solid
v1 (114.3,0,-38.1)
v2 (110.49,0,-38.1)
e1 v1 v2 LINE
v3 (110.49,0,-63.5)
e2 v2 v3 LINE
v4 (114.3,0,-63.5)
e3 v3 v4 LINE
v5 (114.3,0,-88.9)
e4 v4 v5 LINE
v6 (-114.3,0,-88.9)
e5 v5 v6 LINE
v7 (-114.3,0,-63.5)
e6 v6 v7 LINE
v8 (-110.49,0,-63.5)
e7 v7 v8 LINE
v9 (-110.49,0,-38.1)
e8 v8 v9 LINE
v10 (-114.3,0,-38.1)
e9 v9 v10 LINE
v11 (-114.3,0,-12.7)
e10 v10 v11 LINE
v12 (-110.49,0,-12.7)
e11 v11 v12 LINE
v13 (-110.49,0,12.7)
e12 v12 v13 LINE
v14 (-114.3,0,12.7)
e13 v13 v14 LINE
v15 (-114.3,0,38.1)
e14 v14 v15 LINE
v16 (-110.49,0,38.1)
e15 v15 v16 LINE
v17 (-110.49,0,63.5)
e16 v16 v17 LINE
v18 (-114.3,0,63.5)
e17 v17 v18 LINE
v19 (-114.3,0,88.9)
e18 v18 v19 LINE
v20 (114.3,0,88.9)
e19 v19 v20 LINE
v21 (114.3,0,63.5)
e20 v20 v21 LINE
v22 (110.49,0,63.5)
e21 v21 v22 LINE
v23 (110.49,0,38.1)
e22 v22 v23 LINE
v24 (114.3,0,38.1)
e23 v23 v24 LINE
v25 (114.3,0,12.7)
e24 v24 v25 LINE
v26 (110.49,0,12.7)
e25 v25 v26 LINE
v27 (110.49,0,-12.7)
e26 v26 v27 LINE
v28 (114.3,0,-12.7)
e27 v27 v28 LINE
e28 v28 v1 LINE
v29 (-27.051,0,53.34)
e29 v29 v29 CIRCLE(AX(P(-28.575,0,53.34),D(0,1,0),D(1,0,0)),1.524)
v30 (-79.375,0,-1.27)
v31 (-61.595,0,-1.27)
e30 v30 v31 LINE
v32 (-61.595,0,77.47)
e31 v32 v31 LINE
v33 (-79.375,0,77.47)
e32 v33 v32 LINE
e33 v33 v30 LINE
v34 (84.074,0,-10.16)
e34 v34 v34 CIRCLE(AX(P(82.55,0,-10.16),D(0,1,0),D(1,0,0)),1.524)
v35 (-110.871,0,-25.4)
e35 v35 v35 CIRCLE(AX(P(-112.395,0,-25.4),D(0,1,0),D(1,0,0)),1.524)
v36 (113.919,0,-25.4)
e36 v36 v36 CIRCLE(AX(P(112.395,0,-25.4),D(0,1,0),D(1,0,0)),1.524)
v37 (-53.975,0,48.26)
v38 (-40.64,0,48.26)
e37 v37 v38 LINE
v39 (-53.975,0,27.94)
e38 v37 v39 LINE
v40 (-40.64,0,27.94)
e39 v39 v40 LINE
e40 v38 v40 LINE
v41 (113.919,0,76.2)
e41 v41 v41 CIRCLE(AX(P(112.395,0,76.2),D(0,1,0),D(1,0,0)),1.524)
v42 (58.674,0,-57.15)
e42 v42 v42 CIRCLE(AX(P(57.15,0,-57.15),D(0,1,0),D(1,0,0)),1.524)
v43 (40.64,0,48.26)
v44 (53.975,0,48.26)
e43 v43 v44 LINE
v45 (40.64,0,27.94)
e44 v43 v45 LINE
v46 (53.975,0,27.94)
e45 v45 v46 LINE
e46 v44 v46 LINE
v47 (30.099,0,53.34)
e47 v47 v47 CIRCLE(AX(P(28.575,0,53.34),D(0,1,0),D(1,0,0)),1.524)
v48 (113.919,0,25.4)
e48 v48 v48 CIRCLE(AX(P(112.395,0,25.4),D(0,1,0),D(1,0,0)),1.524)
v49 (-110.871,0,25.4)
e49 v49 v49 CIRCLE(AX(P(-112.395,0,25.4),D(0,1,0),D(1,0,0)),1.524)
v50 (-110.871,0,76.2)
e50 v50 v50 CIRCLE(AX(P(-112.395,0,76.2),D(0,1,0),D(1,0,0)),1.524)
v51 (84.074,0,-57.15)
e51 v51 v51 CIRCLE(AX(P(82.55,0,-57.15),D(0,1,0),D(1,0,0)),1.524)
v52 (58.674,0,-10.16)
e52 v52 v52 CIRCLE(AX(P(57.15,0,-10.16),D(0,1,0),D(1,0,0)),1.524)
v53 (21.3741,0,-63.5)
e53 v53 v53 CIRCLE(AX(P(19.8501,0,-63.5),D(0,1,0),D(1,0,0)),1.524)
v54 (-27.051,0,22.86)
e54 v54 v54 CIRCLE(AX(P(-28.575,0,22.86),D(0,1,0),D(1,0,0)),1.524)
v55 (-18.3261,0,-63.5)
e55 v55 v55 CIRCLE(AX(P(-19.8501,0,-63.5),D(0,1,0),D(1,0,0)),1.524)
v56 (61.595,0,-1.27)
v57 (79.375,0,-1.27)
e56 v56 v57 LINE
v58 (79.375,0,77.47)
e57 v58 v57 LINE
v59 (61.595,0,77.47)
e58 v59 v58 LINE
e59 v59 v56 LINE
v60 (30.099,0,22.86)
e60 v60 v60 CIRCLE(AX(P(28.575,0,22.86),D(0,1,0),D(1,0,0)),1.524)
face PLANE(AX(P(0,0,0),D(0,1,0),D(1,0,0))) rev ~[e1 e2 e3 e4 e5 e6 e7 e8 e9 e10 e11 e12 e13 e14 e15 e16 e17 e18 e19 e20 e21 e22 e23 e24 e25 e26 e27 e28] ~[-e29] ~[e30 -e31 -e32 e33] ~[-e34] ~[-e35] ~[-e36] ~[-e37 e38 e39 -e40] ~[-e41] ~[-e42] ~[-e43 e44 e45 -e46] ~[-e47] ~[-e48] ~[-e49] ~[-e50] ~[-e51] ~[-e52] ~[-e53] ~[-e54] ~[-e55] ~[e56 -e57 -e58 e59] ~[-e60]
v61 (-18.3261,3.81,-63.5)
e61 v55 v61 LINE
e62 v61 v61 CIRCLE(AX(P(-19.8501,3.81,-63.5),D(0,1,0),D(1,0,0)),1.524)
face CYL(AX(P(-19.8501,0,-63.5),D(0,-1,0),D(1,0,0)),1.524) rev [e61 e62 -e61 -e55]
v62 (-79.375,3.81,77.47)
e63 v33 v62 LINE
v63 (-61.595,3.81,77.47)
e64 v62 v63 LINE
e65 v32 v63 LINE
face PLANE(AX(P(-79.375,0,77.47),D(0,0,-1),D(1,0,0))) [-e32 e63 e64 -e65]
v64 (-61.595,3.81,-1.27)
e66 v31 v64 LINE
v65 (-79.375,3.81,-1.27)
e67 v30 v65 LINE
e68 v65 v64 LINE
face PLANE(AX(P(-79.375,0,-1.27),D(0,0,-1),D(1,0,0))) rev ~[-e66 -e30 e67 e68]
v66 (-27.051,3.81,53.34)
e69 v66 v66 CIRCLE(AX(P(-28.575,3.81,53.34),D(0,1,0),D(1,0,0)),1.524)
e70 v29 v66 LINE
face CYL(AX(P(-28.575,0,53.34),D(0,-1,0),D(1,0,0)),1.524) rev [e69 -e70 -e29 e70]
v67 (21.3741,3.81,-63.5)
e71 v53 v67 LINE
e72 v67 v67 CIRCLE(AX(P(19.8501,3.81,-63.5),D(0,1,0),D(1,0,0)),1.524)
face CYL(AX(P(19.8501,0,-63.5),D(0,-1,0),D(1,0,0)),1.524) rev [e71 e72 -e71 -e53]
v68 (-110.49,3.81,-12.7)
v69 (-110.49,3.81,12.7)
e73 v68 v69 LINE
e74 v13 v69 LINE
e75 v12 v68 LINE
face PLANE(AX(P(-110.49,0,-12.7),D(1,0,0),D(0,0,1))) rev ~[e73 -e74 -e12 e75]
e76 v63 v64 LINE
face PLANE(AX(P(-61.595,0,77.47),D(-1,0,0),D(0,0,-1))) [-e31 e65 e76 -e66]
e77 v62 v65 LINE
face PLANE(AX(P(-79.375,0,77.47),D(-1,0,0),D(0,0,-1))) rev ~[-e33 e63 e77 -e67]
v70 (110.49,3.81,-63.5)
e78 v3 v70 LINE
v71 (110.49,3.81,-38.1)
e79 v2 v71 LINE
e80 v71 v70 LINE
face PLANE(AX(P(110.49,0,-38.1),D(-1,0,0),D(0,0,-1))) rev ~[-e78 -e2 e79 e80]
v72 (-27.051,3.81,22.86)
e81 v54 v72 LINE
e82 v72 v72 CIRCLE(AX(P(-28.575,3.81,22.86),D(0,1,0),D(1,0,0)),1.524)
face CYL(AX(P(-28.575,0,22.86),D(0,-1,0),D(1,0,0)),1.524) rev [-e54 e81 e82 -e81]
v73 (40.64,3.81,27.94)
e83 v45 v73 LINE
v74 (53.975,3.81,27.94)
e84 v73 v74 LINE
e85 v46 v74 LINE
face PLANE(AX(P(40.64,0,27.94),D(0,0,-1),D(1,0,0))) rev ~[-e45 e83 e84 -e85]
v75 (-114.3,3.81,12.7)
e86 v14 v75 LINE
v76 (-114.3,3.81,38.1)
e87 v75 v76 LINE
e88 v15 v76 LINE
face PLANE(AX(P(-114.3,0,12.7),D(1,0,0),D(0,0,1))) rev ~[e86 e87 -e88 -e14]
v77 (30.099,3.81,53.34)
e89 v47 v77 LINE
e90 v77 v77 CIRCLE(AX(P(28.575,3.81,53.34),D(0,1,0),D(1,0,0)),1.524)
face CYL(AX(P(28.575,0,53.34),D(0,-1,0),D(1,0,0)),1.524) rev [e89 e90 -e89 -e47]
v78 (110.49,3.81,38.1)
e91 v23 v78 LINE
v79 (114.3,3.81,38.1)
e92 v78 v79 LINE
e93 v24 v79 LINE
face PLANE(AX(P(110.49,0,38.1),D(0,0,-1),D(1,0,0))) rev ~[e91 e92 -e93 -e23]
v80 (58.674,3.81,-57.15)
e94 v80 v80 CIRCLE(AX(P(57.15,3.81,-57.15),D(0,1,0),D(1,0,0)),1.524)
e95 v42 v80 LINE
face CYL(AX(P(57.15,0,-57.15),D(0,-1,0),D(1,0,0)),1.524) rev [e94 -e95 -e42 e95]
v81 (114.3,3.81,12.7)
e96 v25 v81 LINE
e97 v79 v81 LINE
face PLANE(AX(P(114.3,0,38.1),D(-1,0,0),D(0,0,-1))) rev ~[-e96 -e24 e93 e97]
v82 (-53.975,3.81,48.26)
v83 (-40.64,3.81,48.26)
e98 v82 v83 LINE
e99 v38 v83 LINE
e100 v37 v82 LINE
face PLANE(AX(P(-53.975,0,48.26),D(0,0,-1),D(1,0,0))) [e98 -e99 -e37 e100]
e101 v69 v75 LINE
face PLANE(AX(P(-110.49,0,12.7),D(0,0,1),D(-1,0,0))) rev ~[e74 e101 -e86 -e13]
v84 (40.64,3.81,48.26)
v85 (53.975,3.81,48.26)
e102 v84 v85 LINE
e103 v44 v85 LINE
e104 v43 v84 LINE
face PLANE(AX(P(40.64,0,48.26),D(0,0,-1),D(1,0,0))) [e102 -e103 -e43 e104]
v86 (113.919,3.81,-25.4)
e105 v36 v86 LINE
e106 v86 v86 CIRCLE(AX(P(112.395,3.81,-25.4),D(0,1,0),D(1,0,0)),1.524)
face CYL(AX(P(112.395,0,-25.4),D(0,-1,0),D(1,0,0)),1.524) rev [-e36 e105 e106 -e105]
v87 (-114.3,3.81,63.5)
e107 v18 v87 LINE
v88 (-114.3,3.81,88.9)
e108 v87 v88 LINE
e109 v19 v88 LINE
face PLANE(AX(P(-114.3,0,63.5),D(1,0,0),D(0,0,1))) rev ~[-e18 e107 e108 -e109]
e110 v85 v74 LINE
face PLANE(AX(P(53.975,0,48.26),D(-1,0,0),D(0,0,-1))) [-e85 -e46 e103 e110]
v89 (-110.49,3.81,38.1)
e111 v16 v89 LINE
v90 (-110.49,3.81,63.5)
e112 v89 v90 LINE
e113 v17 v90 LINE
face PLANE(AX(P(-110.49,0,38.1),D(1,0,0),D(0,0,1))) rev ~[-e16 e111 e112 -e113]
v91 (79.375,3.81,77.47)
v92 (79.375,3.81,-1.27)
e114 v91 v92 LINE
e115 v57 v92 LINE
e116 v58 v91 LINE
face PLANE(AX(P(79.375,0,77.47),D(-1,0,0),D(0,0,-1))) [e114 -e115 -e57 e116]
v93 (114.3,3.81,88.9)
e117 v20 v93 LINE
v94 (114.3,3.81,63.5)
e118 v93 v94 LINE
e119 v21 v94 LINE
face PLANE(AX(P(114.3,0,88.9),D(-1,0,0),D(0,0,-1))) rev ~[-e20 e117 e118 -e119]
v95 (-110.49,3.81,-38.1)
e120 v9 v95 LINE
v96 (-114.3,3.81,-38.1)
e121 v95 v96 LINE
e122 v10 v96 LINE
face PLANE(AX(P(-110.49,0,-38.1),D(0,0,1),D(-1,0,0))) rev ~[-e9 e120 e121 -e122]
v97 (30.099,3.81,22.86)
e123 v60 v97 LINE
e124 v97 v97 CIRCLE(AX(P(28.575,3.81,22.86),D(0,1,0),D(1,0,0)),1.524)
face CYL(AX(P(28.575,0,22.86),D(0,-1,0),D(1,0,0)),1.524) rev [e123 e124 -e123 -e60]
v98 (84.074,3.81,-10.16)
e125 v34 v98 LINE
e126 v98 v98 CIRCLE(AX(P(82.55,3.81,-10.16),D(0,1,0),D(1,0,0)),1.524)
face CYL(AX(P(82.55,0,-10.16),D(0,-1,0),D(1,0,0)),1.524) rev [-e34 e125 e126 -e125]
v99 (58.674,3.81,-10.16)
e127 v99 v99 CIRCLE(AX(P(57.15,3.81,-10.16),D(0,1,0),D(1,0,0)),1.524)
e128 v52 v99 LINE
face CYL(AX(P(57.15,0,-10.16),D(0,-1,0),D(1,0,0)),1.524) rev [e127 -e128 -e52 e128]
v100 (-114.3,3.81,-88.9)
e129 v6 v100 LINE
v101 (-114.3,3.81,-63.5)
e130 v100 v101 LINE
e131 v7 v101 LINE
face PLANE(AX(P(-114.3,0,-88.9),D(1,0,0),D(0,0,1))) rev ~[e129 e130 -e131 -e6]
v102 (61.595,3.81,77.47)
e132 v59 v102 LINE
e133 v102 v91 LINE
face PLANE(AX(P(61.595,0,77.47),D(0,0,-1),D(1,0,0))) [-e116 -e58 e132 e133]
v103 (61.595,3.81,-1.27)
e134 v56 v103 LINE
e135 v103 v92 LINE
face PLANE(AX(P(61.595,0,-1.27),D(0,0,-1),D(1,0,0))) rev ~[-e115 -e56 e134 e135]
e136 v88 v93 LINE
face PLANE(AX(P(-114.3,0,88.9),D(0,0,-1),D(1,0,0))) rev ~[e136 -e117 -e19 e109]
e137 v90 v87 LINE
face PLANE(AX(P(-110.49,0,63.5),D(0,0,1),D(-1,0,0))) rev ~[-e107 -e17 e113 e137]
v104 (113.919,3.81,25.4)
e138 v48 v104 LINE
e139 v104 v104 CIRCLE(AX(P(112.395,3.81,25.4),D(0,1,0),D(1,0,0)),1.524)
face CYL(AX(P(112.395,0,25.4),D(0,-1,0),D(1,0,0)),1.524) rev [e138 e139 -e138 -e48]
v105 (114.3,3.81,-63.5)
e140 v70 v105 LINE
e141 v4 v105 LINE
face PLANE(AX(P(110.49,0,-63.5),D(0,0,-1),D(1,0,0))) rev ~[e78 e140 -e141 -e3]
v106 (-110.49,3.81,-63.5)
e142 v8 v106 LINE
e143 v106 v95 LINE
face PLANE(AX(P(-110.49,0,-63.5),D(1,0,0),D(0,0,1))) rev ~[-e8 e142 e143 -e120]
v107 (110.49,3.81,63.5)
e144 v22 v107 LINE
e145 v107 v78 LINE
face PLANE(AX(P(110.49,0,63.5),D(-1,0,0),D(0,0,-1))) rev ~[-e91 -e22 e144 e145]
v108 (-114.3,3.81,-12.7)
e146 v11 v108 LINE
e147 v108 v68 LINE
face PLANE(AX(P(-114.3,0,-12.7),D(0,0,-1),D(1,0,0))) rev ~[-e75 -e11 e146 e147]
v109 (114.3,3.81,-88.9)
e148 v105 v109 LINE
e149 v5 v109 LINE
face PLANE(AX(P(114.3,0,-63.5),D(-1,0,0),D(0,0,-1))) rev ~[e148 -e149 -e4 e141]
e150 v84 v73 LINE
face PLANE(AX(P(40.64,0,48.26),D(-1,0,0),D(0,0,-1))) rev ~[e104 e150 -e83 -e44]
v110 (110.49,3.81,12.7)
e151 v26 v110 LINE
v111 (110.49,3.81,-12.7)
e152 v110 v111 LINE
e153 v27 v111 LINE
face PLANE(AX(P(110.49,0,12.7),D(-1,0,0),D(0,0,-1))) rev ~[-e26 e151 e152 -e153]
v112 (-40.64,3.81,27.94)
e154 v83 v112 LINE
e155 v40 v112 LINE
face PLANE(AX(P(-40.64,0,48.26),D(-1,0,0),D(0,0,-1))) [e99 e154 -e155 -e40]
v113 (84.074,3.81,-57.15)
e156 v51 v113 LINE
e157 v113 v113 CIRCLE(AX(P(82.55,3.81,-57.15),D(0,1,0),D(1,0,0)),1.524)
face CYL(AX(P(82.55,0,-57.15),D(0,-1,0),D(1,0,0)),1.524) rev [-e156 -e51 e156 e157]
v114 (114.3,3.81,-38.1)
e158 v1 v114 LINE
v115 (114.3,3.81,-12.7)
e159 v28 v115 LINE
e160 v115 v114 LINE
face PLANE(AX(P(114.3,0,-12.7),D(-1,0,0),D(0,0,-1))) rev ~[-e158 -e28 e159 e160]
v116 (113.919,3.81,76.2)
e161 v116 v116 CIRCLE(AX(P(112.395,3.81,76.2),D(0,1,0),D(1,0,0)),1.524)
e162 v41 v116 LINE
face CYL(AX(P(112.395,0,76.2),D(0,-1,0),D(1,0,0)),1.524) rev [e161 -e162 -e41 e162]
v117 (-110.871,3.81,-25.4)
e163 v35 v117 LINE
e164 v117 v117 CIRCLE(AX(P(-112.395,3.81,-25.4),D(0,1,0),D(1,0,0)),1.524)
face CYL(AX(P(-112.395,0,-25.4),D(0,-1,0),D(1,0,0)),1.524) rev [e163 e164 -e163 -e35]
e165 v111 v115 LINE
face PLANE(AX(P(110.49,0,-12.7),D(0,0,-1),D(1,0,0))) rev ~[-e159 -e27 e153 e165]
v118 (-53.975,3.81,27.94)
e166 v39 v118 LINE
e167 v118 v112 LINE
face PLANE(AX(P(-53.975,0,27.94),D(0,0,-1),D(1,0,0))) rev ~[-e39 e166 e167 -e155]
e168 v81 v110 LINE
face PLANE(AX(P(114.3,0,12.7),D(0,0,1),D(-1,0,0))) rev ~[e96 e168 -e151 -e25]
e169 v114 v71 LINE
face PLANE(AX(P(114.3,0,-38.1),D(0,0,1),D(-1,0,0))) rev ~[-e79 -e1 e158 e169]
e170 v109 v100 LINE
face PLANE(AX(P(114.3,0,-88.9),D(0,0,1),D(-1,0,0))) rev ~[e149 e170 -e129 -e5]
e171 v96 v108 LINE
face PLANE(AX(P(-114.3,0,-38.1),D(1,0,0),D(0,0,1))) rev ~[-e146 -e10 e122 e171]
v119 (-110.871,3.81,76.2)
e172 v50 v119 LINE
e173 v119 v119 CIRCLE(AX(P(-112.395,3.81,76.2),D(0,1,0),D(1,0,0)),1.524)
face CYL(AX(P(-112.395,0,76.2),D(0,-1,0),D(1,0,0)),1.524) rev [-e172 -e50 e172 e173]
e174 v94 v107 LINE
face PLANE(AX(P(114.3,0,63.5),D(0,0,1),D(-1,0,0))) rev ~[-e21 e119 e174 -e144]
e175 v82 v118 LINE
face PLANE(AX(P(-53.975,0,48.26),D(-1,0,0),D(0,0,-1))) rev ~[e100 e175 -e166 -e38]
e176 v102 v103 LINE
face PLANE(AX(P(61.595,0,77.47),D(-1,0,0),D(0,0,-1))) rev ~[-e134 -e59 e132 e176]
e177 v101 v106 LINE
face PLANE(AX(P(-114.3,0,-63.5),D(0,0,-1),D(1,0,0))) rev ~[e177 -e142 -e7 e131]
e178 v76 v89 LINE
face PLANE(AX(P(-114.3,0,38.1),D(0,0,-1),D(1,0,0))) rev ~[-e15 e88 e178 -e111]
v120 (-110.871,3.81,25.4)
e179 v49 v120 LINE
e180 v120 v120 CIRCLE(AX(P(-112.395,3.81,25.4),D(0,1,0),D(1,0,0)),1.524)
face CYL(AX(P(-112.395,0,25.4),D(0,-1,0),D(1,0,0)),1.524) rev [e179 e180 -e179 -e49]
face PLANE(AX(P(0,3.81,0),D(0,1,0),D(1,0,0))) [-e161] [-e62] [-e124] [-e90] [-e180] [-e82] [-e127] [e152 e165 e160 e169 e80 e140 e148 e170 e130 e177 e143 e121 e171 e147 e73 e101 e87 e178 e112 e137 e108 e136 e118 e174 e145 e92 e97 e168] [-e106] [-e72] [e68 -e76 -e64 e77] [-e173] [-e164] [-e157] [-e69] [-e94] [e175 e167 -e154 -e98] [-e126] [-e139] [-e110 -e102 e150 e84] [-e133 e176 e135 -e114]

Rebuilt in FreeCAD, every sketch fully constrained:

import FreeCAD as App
import Part
import Sketcher
from FreeCAD import Vector
Q = App.Units.Quantity


def add_polygon(sketch, points):
    """Adds a closed chain of lines whose ends are joined by coincident constraints."""
    first, n = sketch.GeometryCount, len(points)
    for a, b in zip(points, points[1:] + points[:1]):
        sketch.addGeometry(Part.LineSegment(App.Vector(*a, 0), App.Vector(*b, 0)), False)
    for i in range(n):
        sketch.addConstraint(Sketcher.Constraint("Coincident", first + i, 2, first + (i + 1) % n, 1))

doc = App.newDocument("Part")
body = doc.addObject("PartDesign::Body", "Body")

# Sketch on XZ plane
sketch1 = body.newObject("Sketcher::SketchObject", "Sketch")
sketch1.AttachmentSupport = (doc.getObject("XZ_Plane"), [""])
sketch1.MapMode = "FlatFace"
add_polygon(sketch1, [(-114.3, 88.9), (114.3, 88.9), (114.3, 63.5), (110.5, 63.5), (110.5, 38.1), (114.3, 38.1), (114.3, 12.7), (110.5, 12.7), (110.5, -12.7), (114.3, -12.7), (114.3, -38.1), (110.5, -38.1), (110.5, -63.5), (114.3, -63.5), (114.3, -88.9), (-114.3, -88.9), (-114.3, -63.5), (-110.5, -63.5), (-110.5, -38.1), (-114.3, -38.1), (-114.3, -12.7), (-110.5, -12.7), (-110.5, 12.7), (-114.3, 12.7), (-114.3, 38.1), (-110.5, 38.1), (-110.5, 63.5), (-114.3, 63.5)])  # lines 0-27
sketch1.addGeometry(Part.Circle(Vector(-112.4, 76.2, 0), Vector(0, 0, 1), 1.5), False)  # 28
sketch1.addGeometry(Part.Circle(Vector(-28.6, 53.3, 0), Vector(0, 0, 1), 1.5), False)  # 29
sketch1.addGeometry(Part.Circle(Vector(-112.4, 25.4, 0), Vector(0, 0, 1), 1.5), False)  # 30
add_polygon(sketch1, [(-61.6, 77.5), (-79.4, 77.5), (-79.4, -1.3), (-61.6, -1.3)])  # lines 31-34
add_polygon(sketch1, [(-40.6, 48.3), (-54, 48.3), (-54, 27.9), (-40.6, 27.9)])  # lines 35-38
sketch1.addGeometry(Part.Circle(Vector(-28.6, 22.9, 0), Vector(0, 0, 1), 1.5), False)  # 39
sketch1.addGeometry(Part.Circle(Vector(28.6, 53.3, 0), Vector(0, 0, 1), 1.5), False)  # 40
sketch1.addGeometry(Part.Circle(Vector(112.4, 76.2, 0), Vector(0, 0, 1), 1.5), False)  # 41
add_polygon(sketch1, [(54, 48.3), (40.6, 48.3), (40.6, 27.9), (54, 27.9)])  # lines 42-45
sketch1.addGeometry(Part.Circle(Vector(28.6, 22.9, 0), Vector(0, 0, 1), 1.5), False)  # 46
add_polygon(sketch1, [(79.4, 77.5), (61.6, 77.5), (61.6, -1.3), (79.4, -1.3)])  # lines 47-50
sketch1.addGeometry(Part.Circle(Vector(112.4, 25.4, 0), Vector(0, 0, 1), 1.5), False)  # 51
sketch1.addGeometry(Part.Circle(Vector(-112.4, -25.4, 0), Vector(0, 0, 1), 1.5), False)  # 52
sketch1.addGeometry(Part.Circle(Vector(-19.9, -63.5, 0), Vector(0, 0, 1), 1.5), False)  # 53
sketch1.addGeometry(Part.Circle(Vector(57.1, -10.2, 0), Vector(0, 0, 1), 1.5), False)  # 54
sketch1.addGeometry(Part.Circle(Vector(82.5, -10.2, 0), Vector(0, 0, 1), 1.5), False)  # 55
sketch1.addGeometry(Part.Circle(Vector(112.4, -25.4, 0), Vector(0, 0, 1), 1.5), False)  # 56
sketch1.addGeometry(Part.Circle(Vector(19.9, -63.5, 0), Vector(0, 0, 1), 1.5), False)  # 57
sketch1.addGeometry(Part.Circle(Vector(57.1, -57.1, 0), Vector(0, 0, 1), 1.5), False)  # 58
sketch1.addGeometry(Part.Circle(Vector(82.5, -57.1, 0), Vector(0, 0, 1), 1.5), False)  # 59
sketch1.addConstraint([
    Sketcher.Constraint("Horizontal", 0),
    Sketcher.Constraint("Vertical", 1),
    Sketcher.Constraint("Horizontal", 2),
    Sketcher.Constraint("Vertical", 3),
    Sketcher.Constraint("Horizontal", 4),
    Sketcher.Constraint("Vertical", 5),
    Sketcher.Constraint("Horizontal", 6),
    Sketcher.Constraint("Vertical", 7),
    Sketcher.Constraint("Horizontal", 8),
    Sketcher.Constraint("Vertical", 9),
    Sketcher.Constraint("Horizontal", 10),
    Sketcher.Constraint("Vertical", 11),
    Sketcher.Constraint("Horizontal", 12),
    Sketcher.Constraint("Vertical", 13),
    Sketcher.Constraint("Horizontal", 14),
    Sketcher.Constraint("Vertical", 15),
    Sketcher.Constraint("Horizontal", 16),
    Sketcher.Constraint("Vertical", 17),
    Sketcher.Constraint("Horizontal", 18),
    Sketcher.Constraint("Vertical", 19),
    Sketcher.Constraint("Horizontal", 20),
    Sketcher.Constraint("Vertical", 21),
    Sketcher.Constraint("Horizontal", 22),
    Sketcher.Constraint("Vertical", 23),
    Sketcher.Constraint("Horizontal", 24),
    Sketcher.Constraint("Vertical", 25),
    Sketcher.Constraint("Horizontal", 26),
    Sketcher.Constraint("Vertical", 27),
    Sketcher.Constraint("Horizontal", 31),
    Sketcher.Constraint("Vertical", 32),
    Sketcher.Constraint("Horizontal", 33),
    Sketcher.Constraint("Vertical", 34),
    Sketcher.Constraint("Horizontal", 35),
    Sketcher.Constraint("Vertical", 36),
    Sketcher.Constraint("Horizontal", 37),
    Sketcher.Constraint("Vertical", 38),
    Sketcher.Constraint("Horizontal", 42),
    Sketcher.Constraint("Vertical", 43),
    Sketcher.Constraint("Horizontal", 44),
    Sketcher.Constraint("Vertical", 45),
    Sketcher.Constraint("Horizontal", 47),
    Sketcher.Constraint("Vertical", 48),
    Sketcher.Constraint("Horizontal", 49),
    Sketcher.Constraint("Vertical", 50),
    Sketcher.Constraint("Equal", 28, 29),
    Sketcher.Constraint("Equal", 29, 30),
    Sketcher.Constraint("Equal", 30, 39),
    Sketcher.Constraint("Equal", 39, 40),
    Sketcher.Constraint("Equal", 40, 41),
    Sketcher.Constraint("Equal", 41, 46),
    Sketcher.Constraint("Equal", 46, 51),
    Sketcher.Constraint("Equal", 51, 52),
    Sketcher.Constraint("Equal", 52, 53),
    Sketcher.Constraint("Equal", 53, 54),
    Sketcher.Constraint("Equal", 54, 55),
    Sketcher.Constraint("Equal", 55, 56),
    Sketcher.Constraint("Equal", 56, 57),
    Sketcher.Constraint("Equal", 57, 58),
    Sketcher.Constraint("Equal", 58, 59),
    Sketcher.Constraint("Symmetric", 51, 3, 52, 3, -1, 1),
    Sketcher.Constraint("Symmetric", 30, 3, 56, 3, -1, 1),
    Sketcher.Constraint("Symmetric", 0, 2, 14, 2, -1, 1),
    Sketcher.Constraint("Symmetric", 2, 2, 16, 2, -1, 1),
    Sketcher.Constraint("Symmetric", 4, 2, 18, 2, -1, 1),
    Sketcher.Constraint("Symmetric", 6, 2, 20, 2, -1, 1),
    Sketcher.Constraint("Symmetric", 8, 2, 22, 2, -1, 1),
    Sketcher.Constraint("Symmetric", 10, 2, 24, 2, -1, 1),
    Sketcher.Constraint("Symmetric", 12, 2, 26, 2, -1, 1),
    Sketcher.Constraint("Symmetric", 29, 3, 40, 3, -2),
    Sketcher.Constraint("Symmetric", 28, 3, 41, 3, -2),
    Sketcher.Constraint("Symmetric", 39, 3, 46, 3, -2),
    Sketcher.Constraint("Symmetric", 30, 3, 51, 3, -2),
    Sketcher.Constraint("Symmetric", 53, 3, 57, 3, -2),
    Sketcher.Constraint("Symmetric", 12, 2, 15, 2, -2),
    Sketcher.Constraint("Symmetric", 10, 2, 17, 2, -2),
    Sketcher.Constraint("Symmetric", 8, 2, 19, 2, -2),
    Sketcher.Constraint("Symmetric", 38, 2, 42, 2, -2),
    Sketcher.Constraint("Symmetric", 36, 2, 44, 2, -2),
    Sketcher.Constraint("Symmetric", 34, 2, 47, 2, -2),
    Sketcher.Constraint("Symmetric", 32, 2, 49, 2, -2),
    Sketcher.Constraint("Horizontal", 54, 3, 55, 3),
    Sketcher.Constraint("Horizontal", 58, 3, 59, 3),
    Sketcher.Constraint("Horizontal", 57, 3, 11, 2),
    Sketcher.Constraint("Vertical", 28, 3, 30, 3),
    Sketcher.Constraint("Vertical", 29, 3, 39, 3),
    Sketcher.Constraint("Vertical", 54, 3, 58, 3),
    Sketcher.Constraint("Vertical", 55, 3, 59, 3),
    Sketcher.Constraint("Vertical", 1, 2, 4, 2),
    Sketcher.Constraint("Vertical", 3, 2, 6, 2),
    Sketcher.Constraint("Equal", 1, 3),
    Sketcher.Constraint("Equal", 3, 5),
    Sketcher.Constraint("Equal", 5, 7),
    Sketcher.Constraint("Diameter", 28, Q("0.12 in")),
    Sketcher.Constraint("DistanceX", 0, 1, 0, 2, Q("9 in")),
    Sketcher.Constraint("DistanceY", 1, 2, 1, 1, Q("1 in")),
    Sketcher.Constraint("DistanceX", 31, 2, 31, 1, Q("0.7 in")),
    Sketcher.Constraint("DistanceY", 32, 2, 32, 1, Q("3.1 in")),
    Sketcher.Constraint("DistanceY", 36, 2, 36, 1, Q("0.8 in")),
    Sketcher.Constraint("DistanceY", -1, 1, 28, 3, Q("3 in")),
    Sketcher.Constraint("DistanceY", -1, 1, 30, 3, Q("1 in")),
    Sketcher.Constraint("DistanceX", 54, 3, 55, 3, Q("1 in")),
    Sketcher.Constraint("DistanceX", 28, 3, 34, 2, Q("2 in")),
    Sketcher.Constraint("DistanceX", 35, 2, 29, 3, Q("1 in")),
    Sketcher.Constraint("DistanceY", 39, 3, 35, 2, Q("1 in")),
    Sketcher.Constraint("DistanceX", 31, 2, 35, 2, Q("1 in")),
    Sketcher.Constraint("DistanceY", 36, 2, 29, 3, Q("1 in")),
    Sketcher.Constraint("DistanceX", 2, 2, 2, 1, Q("0.15 in")),
    Sketcher.Constraint("DistanceY", -1, 1, 29, 3, Q("2.1 in")),
    Sketcher.Constraint("DistanceY", 54, 3, -1, 1, Q("0.4 in")),
    Sketcher.Constraint("DistanceX", 37, 2, -1, 1, Q("1.6 in")),
    Sketcher.Constraint("DistanceX", 55, 3, 2, 2, Q("1.1 in")),
    Sketcher.Constraint("DistanceX", 35, 2, 35, 1, Q("0.525 in")),
    Sketcher.Constraint("DistanceY", 58, 3, -1, 1, Q("2.25 in")),
    Sketcher.Constraint("DistanceY", -1, 1, 31, 2, Q("3.05 in")),
    Sketcher.Constraint("DistanceX", 53, 3, 57, 3, Q("1.563 in")),
])
pad1 = body.newObject("PartDesign::Pad", "Pad")
pad1.Profile = sketch1
pad1.Length = Q("0.15 in")
pad1.Reversed = True

doc.recompute()
